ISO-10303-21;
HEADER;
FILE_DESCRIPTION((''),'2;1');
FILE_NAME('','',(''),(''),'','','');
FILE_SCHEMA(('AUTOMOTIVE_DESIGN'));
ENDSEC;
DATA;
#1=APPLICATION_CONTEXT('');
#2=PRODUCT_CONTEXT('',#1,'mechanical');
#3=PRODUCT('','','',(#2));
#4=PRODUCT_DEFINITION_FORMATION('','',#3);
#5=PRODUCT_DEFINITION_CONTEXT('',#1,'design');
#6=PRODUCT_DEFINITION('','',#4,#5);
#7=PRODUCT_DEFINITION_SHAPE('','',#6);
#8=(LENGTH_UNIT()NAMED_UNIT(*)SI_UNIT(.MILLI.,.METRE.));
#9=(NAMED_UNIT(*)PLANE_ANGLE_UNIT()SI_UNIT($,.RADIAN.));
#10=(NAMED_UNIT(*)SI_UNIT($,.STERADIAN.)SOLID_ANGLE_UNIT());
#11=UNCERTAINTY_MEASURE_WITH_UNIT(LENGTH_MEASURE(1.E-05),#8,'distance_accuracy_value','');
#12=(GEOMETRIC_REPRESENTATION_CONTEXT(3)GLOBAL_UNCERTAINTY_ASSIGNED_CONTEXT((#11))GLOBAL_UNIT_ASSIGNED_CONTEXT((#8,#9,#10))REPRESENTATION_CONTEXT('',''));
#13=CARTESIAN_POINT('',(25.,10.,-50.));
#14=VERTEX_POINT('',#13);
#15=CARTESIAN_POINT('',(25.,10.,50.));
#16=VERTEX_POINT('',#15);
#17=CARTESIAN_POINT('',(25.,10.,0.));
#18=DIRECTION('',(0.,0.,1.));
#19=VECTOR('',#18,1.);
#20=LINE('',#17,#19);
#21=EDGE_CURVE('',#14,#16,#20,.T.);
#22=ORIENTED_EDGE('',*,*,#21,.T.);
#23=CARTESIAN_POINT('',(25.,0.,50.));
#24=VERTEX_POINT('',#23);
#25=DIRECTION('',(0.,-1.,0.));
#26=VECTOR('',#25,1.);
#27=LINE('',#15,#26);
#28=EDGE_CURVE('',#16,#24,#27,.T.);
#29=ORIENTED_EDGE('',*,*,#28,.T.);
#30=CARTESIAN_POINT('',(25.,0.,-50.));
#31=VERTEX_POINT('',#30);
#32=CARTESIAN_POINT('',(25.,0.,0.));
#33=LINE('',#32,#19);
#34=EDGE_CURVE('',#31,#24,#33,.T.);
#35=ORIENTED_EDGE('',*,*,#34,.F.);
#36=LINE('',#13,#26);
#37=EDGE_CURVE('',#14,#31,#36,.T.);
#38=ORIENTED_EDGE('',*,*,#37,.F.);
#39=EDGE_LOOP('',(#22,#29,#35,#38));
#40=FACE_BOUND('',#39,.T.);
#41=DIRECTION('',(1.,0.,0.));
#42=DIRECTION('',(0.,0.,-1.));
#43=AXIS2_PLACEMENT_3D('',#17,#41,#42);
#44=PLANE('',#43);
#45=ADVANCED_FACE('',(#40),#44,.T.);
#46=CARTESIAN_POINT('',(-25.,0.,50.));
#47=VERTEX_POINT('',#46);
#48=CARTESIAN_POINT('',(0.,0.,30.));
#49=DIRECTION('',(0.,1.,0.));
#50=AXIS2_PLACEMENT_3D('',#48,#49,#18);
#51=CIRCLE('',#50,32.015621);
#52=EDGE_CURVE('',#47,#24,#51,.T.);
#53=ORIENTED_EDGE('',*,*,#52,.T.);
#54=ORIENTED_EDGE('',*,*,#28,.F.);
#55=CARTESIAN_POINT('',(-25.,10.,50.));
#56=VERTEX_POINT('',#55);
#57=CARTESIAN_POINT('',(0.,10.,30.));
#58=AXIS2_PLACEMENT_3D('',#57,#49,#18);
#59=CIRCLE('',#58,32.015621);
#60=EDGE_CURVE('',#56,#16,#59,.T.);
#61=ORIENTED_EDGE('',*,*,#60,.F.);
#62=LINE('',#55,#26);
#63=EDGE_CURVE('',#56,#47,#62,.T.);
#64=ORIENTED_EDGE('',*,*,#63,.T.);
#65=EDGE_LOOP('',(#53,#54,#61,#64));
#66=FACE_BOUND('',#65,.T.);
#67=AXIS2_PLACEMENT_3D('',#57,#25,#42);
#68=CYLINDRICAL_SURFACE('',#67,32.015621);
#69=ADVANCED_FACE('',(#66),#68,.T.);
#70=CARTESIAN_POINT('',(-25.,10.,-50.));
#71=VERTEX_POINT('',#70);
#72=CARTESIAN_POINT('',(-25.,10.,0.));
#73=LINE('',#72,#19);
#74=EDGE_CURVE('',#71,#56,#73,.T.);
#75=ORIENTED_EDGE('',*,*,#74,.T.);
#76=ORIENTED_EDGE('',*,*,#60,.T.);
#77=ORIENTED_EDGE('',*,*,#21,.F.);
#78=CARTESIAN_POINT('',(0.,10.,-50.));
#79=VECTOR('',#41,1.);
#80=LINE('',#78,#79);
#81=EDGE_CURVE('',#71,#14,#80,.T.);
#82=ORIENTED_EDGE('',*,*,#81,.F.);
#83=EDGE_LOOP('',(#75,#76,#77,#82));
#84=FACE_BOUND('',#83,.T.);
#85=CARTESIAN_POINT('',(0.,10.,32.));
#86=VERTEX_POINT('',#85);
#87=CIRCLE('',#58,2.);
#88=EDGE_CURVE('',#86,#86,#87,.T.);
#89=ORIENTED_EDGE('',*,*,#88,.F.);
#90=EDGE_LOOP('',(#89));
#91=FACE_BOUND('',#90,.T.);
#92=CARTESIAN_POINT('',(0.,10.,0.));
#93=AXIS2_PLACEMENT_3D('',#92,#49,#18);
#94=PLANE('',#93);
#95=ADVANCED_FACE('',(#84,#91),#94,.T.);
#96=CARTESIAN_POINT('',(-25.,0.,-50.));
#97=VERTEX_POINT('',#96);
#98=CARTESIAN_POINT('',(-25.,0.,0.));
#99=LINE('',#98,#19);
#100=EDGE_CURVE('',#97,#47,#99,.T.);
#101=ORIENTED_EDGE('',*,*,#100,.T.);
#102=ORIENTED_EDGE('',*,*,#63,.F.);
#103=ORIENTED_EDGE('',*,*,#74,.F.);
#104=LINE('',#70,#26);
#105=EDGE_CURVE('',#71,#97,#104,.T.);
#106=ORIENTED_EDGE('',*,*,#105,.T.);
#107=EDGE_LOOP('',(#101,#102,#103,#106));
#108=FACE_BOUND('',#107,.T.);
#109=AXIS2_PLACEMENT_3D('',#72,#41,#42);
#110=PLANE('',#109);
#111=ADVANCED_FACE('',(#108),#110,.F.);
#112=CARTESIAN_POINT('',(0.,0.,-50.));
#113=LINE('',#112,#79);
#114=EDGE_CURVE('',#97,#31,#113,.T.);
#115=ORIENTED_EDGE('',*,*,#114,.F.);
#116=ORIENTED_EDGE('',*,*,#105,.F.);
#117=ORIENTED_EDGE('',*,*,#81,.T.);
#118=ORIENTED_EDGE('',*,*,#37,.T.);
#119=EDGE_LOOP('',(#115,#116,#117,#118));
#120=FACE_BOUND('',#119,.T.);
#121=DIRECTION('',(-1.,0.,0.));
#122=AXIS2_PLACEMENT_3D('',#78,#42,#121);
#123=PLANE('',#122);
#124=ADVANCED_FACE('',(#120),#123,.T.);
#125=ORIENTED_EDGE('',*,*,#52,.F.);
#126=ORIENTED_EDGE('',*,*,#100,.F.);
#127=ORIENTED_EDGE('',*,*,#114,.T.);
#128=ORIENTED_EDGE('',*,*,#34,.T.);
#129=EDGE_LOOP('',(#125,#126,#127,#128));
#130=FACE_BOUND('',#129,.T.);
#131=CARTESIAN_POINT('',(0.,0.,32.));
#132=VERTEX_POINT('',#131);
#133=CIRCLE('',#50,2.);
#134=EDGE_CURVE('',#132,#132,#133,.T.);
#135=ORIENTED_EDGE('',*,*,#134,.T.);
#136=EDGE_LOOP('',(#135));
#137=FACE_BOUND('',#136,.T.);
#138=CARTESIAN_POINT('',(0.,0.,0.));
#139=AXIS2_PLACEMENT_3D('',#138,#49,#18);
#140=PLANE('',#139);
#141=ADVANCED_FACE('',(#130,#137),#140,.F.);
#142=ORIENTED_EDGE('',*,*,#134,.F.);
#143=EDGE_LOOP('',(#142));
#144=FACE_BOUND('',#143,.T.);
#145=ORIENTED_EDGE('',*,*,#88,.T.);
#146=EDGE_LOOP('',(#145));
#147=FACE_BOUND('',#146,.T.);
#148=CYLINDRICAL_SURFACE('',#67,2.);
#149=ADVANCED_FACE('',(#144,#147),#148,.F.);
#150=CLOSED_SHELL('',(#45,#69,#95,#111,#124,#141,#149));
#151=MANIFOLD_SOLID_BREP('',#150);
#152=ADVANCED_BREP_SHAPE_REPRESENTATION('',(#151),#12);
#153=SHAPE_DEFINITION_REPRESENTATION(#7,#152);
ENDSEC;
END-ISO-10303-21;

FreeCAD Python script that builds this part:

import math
import FreeCAD as App
import Part
import Sketcher

V = App.Vector

doc = App.newDocument("Part")
body = doc.addObject("PartDesign::Body", "Body")

# Sketch on XZ plane
sketch1 = body.newObject("Sketcher::SketchObject", "Sketch")
sketch1.AttachmentSupport = (doc.getObject("XZ_Plane"), [""])
sketch1.MapMode = "FlatFace"
sketch1.addGeometry(Part.LineSegment(V(-25, -50, 0), V(-25, 50, 0)), False)
sketch1.addGeometry(Part.ArcOfCircle(Part.Circle(V(0, 30, 0), V(0, 0, 1), 32), math.radians(39), math.radians(141)), False)
sketch1.addGeometry(Part.LineSegment(V(25, 50, 0), V(25, -50, 0)), False)
sketch1.addGeometry(Part.LineSegment(V(25, -50, 0), V(-25, -50, 0)), False)
sketch1.addGeometry(Part.Circle(V(0, 30, 0), V(0, 0, 1), 2), False)
sketch1.addConstraint(Sketcher.Constraint("Coincident", 0, 2, 1, 2))
sketch1.addConstraint(Sketcher.Constraint("Coincident", 1, 1, 2, 1))
sketch1.addConstraint(Sketcher.Constraint("Coincident", 2, 2, 3, 1))
sketch1.addConstraint(Sketcher.Constraint("Coincident", 3, 2, 0, 1))
sketch1.addConstraint(Sketcher.Constraint("Vertical", 0))
sketch1.addConstraint(Sketcher.Constraint("Vertical", 2))
sketch1.addConstraint(Sketcher.Constraint("Horizontal", 3))
sketch1.addConstraint(Sketcher.Constraint("Coincident", 4, 3, 1, 3))
sketch1.addConstraint(Sketcher.Constraint("Symmetric", 0, 2, 2, 2, -1, 1))
sketch1.addConstraint(Sketcher.Constraint("PointOnObject", 1, 3, -2))
sketch1.addConstraint(Sketcher.Constraint("Diameter", 4, 4.0))
sketch1.addConstraint(Sketcher.Constraint("DistanceX", 3, 2, 3, 1, 50.0))
sketch1.addConstraint(Sketcher.Constraint("DistanceY", 0, 1, 0, 2, 100.0))
sketch1.addConstraint(Sketcher.Constraint("DistanceY", -1, 1, 1, 3, 30.0))
pad1 = body.newObject("PartDesign::Pad", "Pad")
pad1.Profile = sketch1
pad1.Length = 10
pad1.Reversed = True

doc.recompute()
